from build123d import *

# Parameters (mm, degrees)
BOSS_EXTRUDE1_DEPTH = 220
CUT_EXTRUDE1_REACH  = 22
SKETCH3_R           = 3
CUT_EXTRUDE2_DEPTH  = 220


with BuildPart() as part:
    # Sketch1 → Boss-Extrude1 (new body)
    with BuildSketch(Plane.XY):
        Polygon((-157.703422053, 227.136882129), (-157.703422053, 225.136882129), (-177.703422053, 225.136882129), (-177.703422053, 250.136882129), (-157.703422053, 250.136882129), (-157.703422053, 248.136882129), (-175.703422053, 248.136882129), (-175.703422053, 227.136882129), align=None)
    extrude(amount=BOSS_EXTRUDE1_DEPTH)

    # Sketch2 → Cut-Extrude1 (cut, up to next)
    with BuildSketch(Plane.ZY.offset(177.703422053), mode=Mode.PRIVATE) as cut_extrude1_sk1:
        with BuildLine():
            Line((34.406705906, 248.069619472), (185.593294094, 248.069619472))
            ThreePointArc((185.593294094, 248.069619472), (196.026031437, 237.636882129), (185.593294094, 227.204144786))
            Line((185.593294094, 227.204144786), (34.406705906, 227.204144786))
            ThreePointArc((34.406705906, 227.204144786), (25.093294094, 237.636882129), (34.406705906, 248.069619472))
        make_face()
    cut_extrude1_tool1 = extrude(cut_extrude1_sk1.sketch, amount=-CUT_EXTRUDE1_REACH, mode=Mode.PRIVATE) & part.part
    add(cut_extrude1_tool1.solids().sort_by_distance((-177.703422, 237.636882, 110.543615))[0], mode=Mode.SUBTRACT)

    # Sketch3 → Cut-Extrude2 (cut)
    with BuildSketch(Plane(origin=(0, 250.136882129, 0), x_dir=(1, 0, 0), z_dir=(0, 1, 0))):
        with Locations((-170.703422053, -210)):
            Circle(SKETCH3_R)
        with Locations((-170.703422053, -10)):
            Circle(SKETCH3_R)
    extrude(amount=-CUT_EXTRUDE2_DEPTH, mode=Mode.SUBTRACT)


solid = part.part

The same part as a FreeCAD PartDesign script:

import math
import FreeCAD as App
import Part
import Sketcher
from FreeCAD import Vector

doc = App.newDocument("Part")
params = doc.addObject("Spreadsheet::Sheet", "Params")
for row, (alias, value) in enumerate([
    ("sketch1_width", "18 mm"),
    ("sketch1_width2", "20 mm"),
    ("sketch1_height", "2 mm"),
    ("sketch1_height2", "21 mm"),
    ("pad1_length", "220 mm"),
    ("sketch2_radius", "10.5 mm"),
    ("sketch3_diameter", "6 mm"),
    ("pocket2_length", "220 mm"),
], start=1):
    params.set(f"A{row}", alias)
    params.set(f"B{row}", "=" + value)
    params.setAlias(f"B{row}", alias)

body = doc.addObject("PartDesign::Body", "Body")

sketch1 = doc.addObject("Sketcher::SketchObject", "Sketch")
body.addObject(sketch1)
sketch1.AttachmentSupport = (doc.XY_Plane, [""])
sketch1.MapMode = "FlatFace"
sketch1.addGeometry(Part.LineSegment(Vector(-157.7, 225.1, 0), Vector(-157.7, 227.1, 0)), False)
sketch1.addGeometry(Part.LineSegment(Vector(-157.7, 227.1, 0), Vector(-175.7, 227.1, 0)), False)
sketch1.addGeometry(Part.LineSegment(Vector(-175.7, 227.1, 0), Vector(-175.7, 248.1, 0)), False)
sketch1.addGeometry(Part.LineSegment(Vector(-175.7, 248.1, 0), Vector(-157.7, 248.1, 0)), False)
sketch1.addGeometry(Part.LineSegment(Vector(-157.7, 248.1, 0), Vector(-157.7, 250.1, 0)), False)
sketch1.addGeometry(Part.LineSegment(Vector(-157.7, 250.1, 0), Vector(-177.7, 250.1, 0)), False)
sketch1.addGeometry(Part.LineSegment(Vector(-177.7, 250.1, 0), Vector(-177.7, 225.1, 0)), False)
sketch1.addGeometry(Part.LineSegment(Vector(-177.7, 225.1, 0), Vector(-157.7, 225.1, 0)), False)
sketch1.addConstraint(Sketcher.Constraint("Coincident", 0, 2, 1, 1))
sketch1.addConstraint(Sketcher.Constraint("Coincident", 1, 2, 2, 1))
sketch1.addConstraint(Sketcher.Constraint("Coincident", 2, 2, 3, 1))
sketch1.addConstraint(Sketcher.Constraint("Coincident", 3, 2, 4, 1))
sketch1.addConstraint(Sketcher.Constraint("Coincident", 4, 2, 5, 1))
sketch1.addConstraint(Sketcher.Constraint("Coincident", 5, 2, 6, 1))
sketch1.addConstraint(Sketcher.Constraint("Coincident", 6, 2, 7, 1))
sketch1.addConstraint(Sketcher.Constraint("Coincident", 7, 2, 0, 1))
sketch1.addConstraint(Sketcher.Constraint("Vertical", 0))
sketch1.addConstraint(Sketcher.Constraint("Horizontal", 1))
sketch1.addConstraint(Sketcher.Constraint("Vertical", 2))
sketch1.addConstraint(Sketcher.Constraint("Horizontal", 3))
sketch1.addConstraint(Sketcher.Constraint("Vertical", 4))
sketch1.addConstraint(Sketcher.Constraint("Horizontal", 5))
sketch1.addConstraint(Sketcher.Constraint("Vertical", 6))
sketch1.addConstraint(Sketcher.Constraint("Horizontal", 7))
sketch1.addConstraint(Sketcher.Constraint("Vertical", 0, 2, 3, 2))
sketch1.addConstraint(Sketcher.Constraint("Equal", 0, 4))
sketch1.addConstraint(Sketcher.Constraint("DistanceX", 1, 2, 1, 1, 18.0))
sketch1.addConstraint(Sketcher.Constraint("DistanceX", 5, 2, 5, 1, 20.0))
sketch1.addConstraint(Sketcher.Constraint("DistanceY", 0, 1, 0, 2, 2.0))
sketch1.addConstraint(Sketcher.Constraint("DistanceY", 2, 1, 2, 2, 21.0))
sketch1.addConstraint(Sketcher.Constraint("DistanceX", 0, 2, -1, 1, 157.703422))
sketch1.addConstraint(Sketcher.Constraint("DistanceY", -1, 1, 0, 2, 227.136882))
sketch1.setExpression("Constraints[18]", "Params.sketch1_width")
sketch1.setExpression("Constraints[19]", "Params.sketch1_width2")
sketch1.setExpression("Constraints[20]", "Params.sketch1_height")
sketch1.setExpression("Constraints[21]", "Params.sketch1_height2")
pad1 = doc.addObject("PartDesign::Pad", "Pad")
body.addObject(pad1)
pad1.Profile = sketch1
pad1.setExpression("Length", "Params.pad1_length")

sketch2 = doc.addObject("Sketcher::SketchObject", "Sketch001")
body.addObject(sketch2)
sketch2.AttachmentSupport = (doc.YZ_Plane, [""])
sketch2.MapMode = "FlatFace"
sketch2.AttachmentOffset = App.Placement(Vector(0, 0, -177.703422), App.Rotation())
sketch2.addGeometry(Part.LineSegment(Vector(248, 186, 0), Vector(248, 34, 0)), False)
sketch2.addGeometry(Part.ArcOfCircle(Part.Circle(Vector(238, 36, 0), Vector(0, 0, 1), 10), math.radians(-174), math.radians(-6)), False)
sketch2.addGeometry(Part.LineSegment(Vector(227, 34, 0), Vector(227, 186, 0)), False)
sketch2.addGeometry(Part.ArcOfCircle(Part.Circle(Vector(238, 186, 0), Vector(0, 0, 1), 10), math.radians(0), math.radians(180)), False)
sketch2.addConstraint(Sketcher.Constraint("Coincident", 0, 2, 1, 2))
sketch2.addConstraint(Sketcher.Constraint("Coincident", 1, 1, 2, 1))
sketch2.addConstraint(Sketcher.Constraint("Tangent", 2, 2, 3, 2))
sketch2.addConstraint(Sketcher.Constraint("Tangent", 3, 1, 0, 1))
sketch2.addConstraint(Sketcher.Constraint("Vertical", 0))
sketch2.addConstraint(Sketcher.Constraint("Vertical", 2))
sketch2.addConstraint(Sketcher.Constraint("Horizontal", 0, 2, 1, 1))
sketch2.addConstraint(Sketcher.Constraint("Radius", 1, 10.5))
sketch2.addConstraint(Sketcher.Constraint("DistanceY", 1, 3, 3, 3, 150.0))
sketch2.addConstraint(Sketcher.Constraint("Radius", 3, 10.432737))
sketch2.addConstraint(Sketcher.Constraint("DistanceX", -1, 1, 0, 2, 248.069619))
sketch2.addConstraint(Sketcher.Constraint("DistanceY", -1, 1, 1, 3, 35.593294))
sketch2.setExpression("Constraints[7]", "Params.sketch2_radius")
pocket1 = doc.addObject("PartDesign::Pocket", "Pocket")
body.addObject(pocket1)
pocket1.Profile = sketch2
pocket1.Type = "UpToFirst"
pocket1.Reversed = True

sketch3 = doc.addObject("Sketcher::SketchObject", "Sketch002")
body.addObject(sketch3)
sketch3.AttachmentSupport = (doc.XZ_Plane, [""])
sketch3.MapMode = "FlatFace"
sketch3.AttachmentOffset = App.Placement(Vector(0, 0, -250.136882), App.Rotation())
sketch3.addGeometry(Part.Circle(Vector(-170.7, 210, 0), Vector(0, 0, 1), 3), False)
sketch3.addGeometry(Part.Circle(Vector(-170.7, 10, 0), Vector(0, 0, 1), 3), False)
sketch3.addConstraint(Sketcher.Constraint("Equal", 0, 1))
sketch3.addConstraint(Sketcher.Constraint("Vertical", 0, 3, 1, 3))
sketch3.addConstraint(Sketcher.Constraint("Diameter", 0, 6.0))
sketch3.addConstraint(Sketcher.Constraint("DistanceY", -1, 1, 0, 3, 210.0))
sketch3.addConstraint(Sketcher.Constraint("DistanceY", -1, 1, 1, 3, 10.0))
sketch3.addConstraint(Sketcher.Constraint("DistanceX", 0, 3, -1, 1, 170.703422))
sketch3.setExpression("Constraints[2]", "Params.sketch3_diameter")
pocket2 = doc.addObject("PartDesign::Pocket", "Pocket001")
body.addObject(pocket2)
pocket2.Profile = sketch3
pocket2.setExpression("Length", "Params.pocket2_length")
pocket2.Reversed = True

doc.recompute()
